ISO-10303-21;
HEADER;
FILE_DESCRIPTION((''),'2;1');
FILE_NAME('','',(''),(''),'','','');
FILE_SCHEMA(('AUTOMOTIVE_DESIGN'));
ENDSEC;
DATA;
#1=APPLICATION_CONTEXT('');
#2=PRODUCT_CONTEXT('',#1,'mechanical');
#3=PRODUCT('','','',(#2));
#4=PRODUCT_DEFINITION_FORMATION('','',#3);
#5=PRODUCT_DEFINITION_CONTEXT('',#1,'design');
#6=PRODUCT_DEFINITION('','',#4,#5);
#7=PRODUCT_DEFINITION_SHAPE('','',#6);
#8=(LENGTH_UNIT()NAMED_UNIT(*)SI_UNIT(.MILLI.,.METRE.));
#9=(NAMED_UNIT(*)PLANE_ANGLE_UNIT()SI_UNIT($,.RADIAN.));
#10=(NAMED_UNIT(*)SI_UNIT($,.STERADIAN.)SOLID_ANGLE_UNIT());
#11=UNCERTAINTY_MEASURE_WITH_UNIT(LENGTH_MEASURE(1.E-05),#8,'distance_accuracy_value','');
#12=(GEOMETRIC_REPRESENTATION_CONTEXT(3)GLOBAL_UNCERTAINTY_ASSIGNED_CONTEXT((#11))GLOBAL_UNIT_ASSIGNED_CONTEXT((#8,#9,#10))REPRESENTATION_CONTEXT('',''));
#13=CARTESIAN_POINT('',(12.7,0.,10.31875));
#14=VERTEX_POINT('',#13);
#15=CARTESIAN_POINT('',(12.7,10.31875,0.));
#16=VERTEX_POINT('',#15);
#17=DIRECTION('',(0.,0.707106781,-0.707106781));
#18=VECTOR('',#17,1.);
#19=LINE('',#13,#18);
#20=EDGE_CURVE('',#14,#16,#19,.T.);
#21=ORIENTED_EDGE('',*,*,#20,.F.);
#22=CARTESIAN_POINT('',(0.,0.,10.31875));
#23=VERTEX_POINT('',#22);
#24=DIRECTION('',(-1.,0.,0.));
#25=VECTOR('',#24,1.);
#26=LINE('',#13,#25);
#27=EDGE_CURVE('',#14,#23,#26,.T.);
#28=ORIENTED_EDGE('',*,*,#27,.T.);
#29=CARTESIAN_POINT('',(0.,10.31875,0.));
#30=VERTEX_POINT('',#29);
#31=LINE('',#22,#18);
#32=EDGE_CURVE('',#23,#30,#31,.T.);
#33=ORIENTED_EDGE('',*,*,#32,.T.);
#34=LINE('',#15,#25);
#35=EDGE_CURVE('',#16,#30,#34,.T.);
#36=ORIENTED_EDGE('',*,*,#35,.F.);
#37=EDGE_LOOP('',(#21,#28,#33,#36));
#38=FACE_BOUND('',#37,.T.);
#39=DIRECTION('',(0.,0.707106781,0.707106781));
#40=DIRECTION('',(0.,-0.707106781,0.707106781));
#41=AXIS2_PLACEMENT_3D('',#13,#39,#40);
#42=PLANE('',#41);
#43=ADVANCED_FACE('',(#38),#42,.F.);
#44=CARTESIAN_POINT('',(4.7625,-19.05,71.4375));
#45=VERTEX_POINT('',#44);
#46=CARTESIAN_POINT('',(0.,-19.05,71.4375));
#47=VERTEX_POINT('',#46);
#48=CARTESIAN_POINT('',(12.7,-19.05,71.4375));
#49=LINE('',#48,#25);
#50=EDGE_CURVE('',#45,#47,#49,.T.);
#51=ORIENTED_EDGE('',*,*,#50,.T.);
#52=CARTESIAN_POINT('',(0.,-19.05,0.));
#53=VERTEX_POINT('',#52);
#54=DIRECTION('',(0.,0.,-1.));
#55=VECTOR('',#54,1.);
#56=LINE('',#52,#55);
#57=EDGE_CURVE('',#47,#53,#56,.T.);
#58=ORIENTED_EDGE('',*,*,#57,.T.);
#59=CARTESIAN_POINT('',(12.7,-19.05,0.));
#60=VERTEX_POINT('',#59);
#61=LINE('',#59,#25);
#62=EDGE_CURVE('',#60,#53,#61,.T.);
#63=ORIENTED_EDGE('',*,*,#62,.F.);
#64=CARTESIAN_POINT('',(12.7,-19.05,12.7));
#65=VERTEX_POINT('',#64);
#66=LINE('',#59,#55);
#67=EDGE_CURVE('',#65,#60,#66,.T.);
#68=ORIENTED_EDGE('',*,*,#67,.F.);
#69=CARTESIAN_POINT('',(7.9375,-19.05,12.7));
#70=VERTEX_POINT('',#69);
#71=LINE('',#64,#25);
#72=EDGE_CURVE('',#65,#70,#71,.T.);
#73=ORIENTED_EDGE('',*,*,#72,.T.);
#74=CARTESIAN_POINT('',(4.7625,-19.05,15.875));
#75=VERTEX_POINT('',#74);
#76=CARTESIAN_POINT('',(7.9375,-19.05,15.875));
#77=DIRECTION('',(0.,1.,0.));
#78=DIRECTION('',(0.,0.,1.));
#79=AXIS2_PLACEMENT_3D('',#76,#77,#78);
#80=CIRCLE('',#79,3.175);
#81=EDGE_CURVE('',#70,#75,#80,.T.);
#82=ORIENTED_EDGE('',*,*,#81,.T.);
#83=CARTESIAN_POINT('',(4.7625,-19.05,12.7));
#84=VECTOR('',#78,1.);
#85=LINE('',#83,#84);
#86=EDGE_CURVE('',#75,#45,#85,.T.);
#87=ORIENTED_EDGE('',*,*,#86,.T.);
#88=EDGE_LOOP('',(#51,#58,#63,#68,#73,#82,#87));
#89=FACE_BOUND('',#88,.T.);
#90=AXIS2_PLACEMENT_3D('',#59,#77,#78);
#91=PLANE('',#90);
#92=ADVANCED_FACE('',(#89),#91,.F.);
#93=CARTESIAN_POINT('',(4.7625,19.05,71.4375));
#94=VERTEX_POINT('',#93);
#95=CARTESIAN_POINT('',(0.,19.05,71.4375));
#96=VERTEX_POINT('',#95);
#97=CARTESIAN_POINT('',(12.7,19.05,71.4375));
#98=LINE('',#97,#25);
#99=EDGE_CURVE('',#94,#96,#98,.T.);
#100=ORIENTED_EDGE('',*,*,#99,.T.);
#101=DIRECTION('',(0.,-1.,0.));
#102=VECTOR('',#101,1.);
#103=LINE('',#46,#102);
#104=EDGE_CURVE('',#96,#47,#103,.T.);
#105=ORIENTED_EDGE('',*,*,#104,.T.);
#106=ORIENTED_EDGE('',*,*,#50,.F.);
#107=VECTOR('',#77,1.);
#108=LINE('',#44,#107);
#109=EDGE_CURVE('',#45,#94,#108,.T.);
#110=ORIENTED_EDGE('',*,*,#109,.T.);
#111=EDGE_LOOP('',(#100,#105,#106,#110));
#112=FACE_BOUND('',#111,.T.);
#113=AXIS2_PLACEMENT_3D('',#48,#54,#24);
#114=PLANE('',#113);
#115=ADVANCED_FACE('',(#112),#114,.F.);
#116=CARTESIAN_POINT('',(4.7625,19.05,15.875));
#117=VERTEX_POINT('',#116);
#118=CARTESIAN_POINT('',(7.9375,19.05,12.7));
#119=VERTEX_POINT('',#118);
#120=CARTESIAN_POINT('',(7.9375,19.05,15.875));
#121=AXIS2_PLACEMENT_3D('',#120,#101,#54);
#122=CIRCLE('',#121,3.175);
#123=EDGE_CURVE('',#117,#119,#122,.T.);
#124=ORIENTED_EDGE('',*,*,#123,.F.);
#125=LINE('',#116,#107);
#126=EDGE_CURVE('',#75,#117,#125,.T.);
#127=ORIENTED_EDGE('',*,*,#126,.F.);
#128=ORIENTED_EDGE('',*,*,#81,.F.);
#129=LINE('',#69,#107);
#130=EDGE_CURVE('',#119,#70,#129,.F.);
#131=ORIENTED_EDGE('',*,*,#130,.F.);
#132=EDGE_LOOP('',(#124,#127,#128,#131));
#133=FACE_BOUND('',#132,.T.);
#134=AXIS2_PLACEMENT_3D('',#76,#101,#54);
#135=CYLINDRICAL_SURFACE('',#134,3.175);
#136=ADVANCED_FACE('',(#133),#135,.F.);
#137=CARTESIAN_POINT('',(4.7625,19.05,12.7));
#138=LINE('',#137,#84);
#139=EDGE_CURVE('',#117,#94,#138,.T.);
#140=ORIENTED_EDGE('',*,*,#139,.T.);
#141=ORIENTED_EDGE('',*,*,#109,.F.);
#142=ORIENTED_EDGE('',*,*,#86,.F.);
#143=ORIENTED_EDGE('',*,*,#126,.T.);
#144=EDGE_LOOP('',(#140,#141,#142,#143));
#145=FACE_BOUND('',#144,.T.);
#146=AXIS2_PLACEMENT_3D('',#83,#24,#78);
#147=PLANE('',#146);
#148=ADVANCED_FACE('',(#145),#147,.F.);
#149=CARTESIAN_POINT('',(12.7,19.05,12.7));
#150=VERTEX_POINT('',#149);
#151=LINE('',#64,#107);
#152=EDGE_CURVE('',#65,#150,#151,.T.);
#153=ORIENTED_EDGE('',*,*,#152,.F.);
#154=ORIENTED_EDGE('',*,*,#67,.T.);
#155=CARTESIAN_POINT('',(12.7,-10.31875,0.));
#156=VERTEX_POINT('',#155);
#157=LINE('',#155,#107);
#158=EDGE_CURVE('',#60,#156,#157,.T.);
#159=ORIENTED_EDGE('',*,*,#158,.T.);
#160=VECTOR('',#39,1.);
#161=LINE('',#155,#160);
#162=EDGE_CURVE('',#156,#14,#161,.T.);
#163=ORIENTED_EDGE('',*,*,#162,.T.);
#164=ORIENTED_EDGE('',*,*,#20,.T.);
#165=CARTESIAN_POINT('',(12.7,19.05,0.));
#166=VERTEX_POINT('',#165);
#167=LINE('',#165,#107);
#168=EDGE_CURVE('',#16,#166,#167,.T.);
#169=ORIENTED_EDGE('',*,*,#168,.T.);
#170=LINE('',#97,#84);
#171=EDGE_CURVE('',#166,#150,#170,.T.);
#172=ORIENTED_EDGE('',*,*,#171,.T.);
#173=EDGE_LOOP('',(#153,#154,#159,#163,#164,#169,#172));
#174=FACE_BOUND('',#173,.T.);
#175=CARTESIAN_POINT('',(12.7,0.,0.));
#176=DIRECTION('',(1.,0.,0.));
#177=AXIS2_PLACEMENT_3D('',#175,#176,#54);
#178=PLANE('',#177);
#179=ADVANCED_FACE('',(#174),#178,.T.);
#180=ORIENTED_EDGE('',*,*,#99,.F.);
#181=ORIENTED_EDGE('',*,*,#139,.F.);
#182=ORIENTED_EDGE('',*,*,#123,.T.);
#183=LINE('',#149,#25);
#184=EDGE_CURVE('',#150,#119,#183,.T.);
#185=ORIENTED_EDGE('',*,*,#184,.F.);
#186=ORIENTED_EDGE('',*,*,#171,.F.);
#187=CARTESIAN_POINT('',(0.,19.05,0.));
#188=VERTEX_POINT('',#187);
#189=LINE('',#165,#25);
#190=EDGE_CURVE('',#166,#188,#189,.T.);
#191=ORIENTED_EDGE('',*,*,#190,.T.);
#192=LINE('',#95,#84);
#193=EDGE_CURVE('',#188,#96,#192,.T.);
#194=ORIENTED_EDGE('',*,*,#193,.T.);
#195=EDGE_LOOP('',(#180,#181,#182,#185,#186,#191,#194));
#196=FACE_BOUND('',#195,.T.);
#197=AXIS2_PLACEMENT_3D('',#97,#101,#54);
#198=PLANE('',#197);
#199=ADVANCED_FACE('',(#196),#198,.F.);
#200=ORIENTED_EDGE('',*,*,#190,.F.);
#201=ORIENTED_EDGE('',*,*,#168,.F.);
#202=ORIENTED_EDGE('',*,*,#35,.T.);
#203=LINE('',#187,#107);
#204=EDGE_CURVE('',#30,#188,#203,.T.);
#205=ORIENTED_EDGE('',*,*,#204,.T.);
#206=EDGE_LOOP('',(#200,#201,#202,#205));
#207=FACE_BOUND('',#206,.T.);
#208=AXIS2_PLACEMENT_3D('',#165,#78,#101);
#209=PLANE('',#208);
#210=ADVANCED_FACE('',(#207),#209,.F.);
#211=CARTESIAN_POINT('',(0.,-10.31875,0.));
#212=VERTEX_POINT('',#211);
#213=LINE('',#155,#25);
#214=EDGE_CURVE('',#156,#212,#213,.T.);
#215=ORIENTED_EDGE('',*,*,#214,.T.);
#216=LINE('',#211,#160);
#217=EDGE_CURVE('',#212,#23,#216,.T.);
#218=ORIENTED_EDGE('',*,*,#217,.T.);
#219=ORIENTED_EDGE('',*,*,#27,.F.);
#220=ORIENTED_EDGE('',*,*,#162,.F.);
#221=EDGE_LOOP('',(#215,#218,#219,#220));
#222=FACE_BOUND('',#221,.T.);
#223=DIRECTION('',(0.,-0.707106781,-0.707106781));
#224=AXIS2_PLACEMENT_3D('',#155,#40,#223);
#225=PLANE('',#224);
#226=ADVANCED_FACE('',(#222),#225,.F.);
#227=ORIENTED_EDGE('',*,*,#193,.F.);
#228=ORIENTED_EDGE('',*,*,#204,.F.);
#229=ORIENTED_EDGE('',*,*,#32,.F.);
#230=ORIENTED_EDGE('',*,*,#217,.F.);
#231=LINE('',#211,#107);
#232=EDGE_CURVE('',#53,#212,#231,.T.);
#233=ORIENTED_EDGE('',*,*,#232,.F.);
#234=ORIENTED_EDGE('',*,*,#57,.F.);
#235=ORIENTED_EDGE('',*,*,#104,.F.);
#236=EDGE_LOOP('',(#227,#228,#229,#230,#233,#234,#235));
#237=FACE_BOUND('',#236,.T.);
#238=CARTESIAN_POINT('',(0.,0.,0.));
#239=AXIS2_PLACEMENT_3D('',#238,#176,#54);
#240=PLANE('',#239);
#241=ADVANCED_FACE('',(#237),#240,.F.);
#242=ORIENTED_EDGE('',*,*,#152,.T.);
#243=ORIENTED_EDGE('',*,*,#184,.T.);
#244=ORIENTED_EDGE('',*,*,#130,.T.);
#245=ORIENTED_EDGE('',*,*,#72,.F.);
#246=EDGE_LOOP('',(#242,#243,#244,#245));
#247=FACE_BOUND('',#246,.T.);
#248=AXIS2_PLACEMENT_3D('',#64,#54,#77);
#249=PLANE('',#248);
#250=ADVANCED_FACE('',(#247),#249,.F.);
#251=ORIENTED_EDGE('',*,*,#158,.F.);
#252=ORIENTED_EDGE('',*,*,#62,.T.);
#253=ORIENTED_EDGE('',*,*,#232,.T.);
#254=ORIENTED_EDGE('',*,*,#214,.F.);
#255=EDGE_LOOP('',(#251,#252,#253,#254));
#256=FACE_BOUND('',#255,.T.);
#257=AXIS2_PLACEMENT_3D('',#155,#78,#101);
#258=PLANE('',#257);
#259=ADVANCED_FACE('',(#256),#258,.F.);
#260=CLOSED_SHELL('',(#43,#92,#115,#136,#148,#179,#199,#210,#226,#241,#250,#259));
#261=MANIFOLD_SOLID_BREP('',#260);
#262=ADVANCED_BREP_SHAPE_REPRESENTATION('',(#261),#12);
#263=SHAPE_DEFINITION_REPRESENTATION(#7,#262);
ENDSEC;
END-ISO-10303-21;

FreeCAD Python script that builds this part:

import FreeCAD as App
import Part
import Sketcher
Q = App.Units.Quantity


def edges_at(feature, points):
    """Names of the edges that pass closest to the given points."""
    edges = feature.Shape.Edges
    near = lambda p: min(range(len(edges)), key=lambda i: edges[i].distToShape(Part.Vertex(*p))[0])
    return sorted({f"Edge{near(p) + 1}" for p in points})


def add_polygon(sketch, points):
    """Adds a closed chain of lines whose ends are joined by coincident constraints."""
    first, n = sketch.GeometryCount, len(points)
    for a, b in zip(points, points[1:] + points[:1]):
        sketch.addGeometry(Part.LineSegment(App.Vector(*a, 0), App.Vector(*b, 0)), False)
    for i in range(n):
        sketch.addConstraint(Sketcher.Constraint("Coincident", first + i, 2, first + (i + 1) % n, 1))

doc = App.newDocument("Part")
body = doc.addObject("PartDesign::Body", "Body")

# Sketch on YZ plane
sketch1 = body.newObject("Sketcher::SketchObject", "Sketch")
sketch1.AttachmentSupport = (doc.getObject("YZ_Plane"), [""])
sketch1.MapMode = "FlatFace"
add_polygon(sketch1, [(-19, 0), (-10, 0), (0, 10), (10, 0), (19, 0), (19, 71), (-19, 71)])  # lines 0-6
sketch1.addConstraint(Sketcher.Constraint("Horizontal", 0))
sketch1.addConstraint(Sketcher.Constraint("Horizontal", 3))
sketch1.addConstraint(Sketcher.Constraint("Vertical", 4))
sketch1.addConstraint(Sketcher.Constraint("Horizontal", 5))
sketch1.addConstraint(Sketcher.Constraint("Vertical", 6))
sketch1.addConstraint(Sketcher.Constraint("Symmetric", 0, 2, 2, 2, -1, 1))
sketch1.addConstraint(Sketcher.Constraint("Symmetric", 3, 2, 6, 2, -2))
sketch1.addConstraint(Sketcher.Constraint("PointOnObject", 1, 2, -2))
sketch1.addConstraint(Sketcher.Constraint("Perpendicular", 1, 2))
sketch1.addConstraint(Sketcher.Constraint("DistanceX", 5, 2, 5, 1, Q("1.5 in")))
sketch1.addConstraint(Sketcher.Constraint("DistanceX", 0, 1, 0, 2, Q("0.34375 in")))
sketch1.addConstraint(Sketcher.Constraint("DistanceY", 4, 1, 4, 2, Q("2.8125 in")))
pad1 = body.newObject("PartDesign::Pad", "Pad")
pad1.Profile = sketch1
pad1.Length = Q("0.5 in")

# Sketch on XZ plane
sketch2 = body.newObject("Sketcher::SketchObject", "Sketch001")
sketch2.AttachmentSupport = (doc.getObject("XZ_Plane"), [""])
sketch2.MapMode = "FlatFace"
sketch2.AttachmentOffset = App.Placement(App.Vector(0, 0, -0.75 * 25.4), App.Rotation())
add_polygon(sketch2, [(5, 13), (5, 71), (13, 71), (13, 13)])  # lines 0-3
sketch2.addConstraint(Sketcher.Constraint("Vertical", 0))
sketch2.addConstraint(Sketcher.Constraint("Horizontal", 1))
sketch2.addConstraint(Sketcher.Constraint("Vertical", 2))
sketch2.addConstraint(Sketcher.Constraint("Horizontal", 3))
sketch2.addConstraint(Sketcher.Constraint("DistanceX", -1, 1, 1, 2, Q("0.5 in")))
sketch2.addConstraint(Sketcher.Constraint("DistanceY", -1, 1, 2, 2, Q("0.5 in")))
sketch2.addConstraint(Sketcher.Constraint("DistanceX", 1, 1, 1, 2, Q("0.3125 in")))
sketch2.addConstraint(Sketcher.Constraint("DistanceY", 0, 1, 0, 2, Q("2.3125 in")))
pocket1 = body.newObject("PartDesign::Pocket", "Pocket")
pocket1.Profile = sketch2
pocket1.Type = "ThroughAll"
pocket1.Reversed = True
doc.recompute()

fillet = body.newObject("PartDesign::Fillet", "Fillet")
fillet.Base = (pocket1, edges_at(pocket1, [(4.763, 0, 12.7)]))
fillet.Radius = Q("0.125 in")

doc.recompute()
